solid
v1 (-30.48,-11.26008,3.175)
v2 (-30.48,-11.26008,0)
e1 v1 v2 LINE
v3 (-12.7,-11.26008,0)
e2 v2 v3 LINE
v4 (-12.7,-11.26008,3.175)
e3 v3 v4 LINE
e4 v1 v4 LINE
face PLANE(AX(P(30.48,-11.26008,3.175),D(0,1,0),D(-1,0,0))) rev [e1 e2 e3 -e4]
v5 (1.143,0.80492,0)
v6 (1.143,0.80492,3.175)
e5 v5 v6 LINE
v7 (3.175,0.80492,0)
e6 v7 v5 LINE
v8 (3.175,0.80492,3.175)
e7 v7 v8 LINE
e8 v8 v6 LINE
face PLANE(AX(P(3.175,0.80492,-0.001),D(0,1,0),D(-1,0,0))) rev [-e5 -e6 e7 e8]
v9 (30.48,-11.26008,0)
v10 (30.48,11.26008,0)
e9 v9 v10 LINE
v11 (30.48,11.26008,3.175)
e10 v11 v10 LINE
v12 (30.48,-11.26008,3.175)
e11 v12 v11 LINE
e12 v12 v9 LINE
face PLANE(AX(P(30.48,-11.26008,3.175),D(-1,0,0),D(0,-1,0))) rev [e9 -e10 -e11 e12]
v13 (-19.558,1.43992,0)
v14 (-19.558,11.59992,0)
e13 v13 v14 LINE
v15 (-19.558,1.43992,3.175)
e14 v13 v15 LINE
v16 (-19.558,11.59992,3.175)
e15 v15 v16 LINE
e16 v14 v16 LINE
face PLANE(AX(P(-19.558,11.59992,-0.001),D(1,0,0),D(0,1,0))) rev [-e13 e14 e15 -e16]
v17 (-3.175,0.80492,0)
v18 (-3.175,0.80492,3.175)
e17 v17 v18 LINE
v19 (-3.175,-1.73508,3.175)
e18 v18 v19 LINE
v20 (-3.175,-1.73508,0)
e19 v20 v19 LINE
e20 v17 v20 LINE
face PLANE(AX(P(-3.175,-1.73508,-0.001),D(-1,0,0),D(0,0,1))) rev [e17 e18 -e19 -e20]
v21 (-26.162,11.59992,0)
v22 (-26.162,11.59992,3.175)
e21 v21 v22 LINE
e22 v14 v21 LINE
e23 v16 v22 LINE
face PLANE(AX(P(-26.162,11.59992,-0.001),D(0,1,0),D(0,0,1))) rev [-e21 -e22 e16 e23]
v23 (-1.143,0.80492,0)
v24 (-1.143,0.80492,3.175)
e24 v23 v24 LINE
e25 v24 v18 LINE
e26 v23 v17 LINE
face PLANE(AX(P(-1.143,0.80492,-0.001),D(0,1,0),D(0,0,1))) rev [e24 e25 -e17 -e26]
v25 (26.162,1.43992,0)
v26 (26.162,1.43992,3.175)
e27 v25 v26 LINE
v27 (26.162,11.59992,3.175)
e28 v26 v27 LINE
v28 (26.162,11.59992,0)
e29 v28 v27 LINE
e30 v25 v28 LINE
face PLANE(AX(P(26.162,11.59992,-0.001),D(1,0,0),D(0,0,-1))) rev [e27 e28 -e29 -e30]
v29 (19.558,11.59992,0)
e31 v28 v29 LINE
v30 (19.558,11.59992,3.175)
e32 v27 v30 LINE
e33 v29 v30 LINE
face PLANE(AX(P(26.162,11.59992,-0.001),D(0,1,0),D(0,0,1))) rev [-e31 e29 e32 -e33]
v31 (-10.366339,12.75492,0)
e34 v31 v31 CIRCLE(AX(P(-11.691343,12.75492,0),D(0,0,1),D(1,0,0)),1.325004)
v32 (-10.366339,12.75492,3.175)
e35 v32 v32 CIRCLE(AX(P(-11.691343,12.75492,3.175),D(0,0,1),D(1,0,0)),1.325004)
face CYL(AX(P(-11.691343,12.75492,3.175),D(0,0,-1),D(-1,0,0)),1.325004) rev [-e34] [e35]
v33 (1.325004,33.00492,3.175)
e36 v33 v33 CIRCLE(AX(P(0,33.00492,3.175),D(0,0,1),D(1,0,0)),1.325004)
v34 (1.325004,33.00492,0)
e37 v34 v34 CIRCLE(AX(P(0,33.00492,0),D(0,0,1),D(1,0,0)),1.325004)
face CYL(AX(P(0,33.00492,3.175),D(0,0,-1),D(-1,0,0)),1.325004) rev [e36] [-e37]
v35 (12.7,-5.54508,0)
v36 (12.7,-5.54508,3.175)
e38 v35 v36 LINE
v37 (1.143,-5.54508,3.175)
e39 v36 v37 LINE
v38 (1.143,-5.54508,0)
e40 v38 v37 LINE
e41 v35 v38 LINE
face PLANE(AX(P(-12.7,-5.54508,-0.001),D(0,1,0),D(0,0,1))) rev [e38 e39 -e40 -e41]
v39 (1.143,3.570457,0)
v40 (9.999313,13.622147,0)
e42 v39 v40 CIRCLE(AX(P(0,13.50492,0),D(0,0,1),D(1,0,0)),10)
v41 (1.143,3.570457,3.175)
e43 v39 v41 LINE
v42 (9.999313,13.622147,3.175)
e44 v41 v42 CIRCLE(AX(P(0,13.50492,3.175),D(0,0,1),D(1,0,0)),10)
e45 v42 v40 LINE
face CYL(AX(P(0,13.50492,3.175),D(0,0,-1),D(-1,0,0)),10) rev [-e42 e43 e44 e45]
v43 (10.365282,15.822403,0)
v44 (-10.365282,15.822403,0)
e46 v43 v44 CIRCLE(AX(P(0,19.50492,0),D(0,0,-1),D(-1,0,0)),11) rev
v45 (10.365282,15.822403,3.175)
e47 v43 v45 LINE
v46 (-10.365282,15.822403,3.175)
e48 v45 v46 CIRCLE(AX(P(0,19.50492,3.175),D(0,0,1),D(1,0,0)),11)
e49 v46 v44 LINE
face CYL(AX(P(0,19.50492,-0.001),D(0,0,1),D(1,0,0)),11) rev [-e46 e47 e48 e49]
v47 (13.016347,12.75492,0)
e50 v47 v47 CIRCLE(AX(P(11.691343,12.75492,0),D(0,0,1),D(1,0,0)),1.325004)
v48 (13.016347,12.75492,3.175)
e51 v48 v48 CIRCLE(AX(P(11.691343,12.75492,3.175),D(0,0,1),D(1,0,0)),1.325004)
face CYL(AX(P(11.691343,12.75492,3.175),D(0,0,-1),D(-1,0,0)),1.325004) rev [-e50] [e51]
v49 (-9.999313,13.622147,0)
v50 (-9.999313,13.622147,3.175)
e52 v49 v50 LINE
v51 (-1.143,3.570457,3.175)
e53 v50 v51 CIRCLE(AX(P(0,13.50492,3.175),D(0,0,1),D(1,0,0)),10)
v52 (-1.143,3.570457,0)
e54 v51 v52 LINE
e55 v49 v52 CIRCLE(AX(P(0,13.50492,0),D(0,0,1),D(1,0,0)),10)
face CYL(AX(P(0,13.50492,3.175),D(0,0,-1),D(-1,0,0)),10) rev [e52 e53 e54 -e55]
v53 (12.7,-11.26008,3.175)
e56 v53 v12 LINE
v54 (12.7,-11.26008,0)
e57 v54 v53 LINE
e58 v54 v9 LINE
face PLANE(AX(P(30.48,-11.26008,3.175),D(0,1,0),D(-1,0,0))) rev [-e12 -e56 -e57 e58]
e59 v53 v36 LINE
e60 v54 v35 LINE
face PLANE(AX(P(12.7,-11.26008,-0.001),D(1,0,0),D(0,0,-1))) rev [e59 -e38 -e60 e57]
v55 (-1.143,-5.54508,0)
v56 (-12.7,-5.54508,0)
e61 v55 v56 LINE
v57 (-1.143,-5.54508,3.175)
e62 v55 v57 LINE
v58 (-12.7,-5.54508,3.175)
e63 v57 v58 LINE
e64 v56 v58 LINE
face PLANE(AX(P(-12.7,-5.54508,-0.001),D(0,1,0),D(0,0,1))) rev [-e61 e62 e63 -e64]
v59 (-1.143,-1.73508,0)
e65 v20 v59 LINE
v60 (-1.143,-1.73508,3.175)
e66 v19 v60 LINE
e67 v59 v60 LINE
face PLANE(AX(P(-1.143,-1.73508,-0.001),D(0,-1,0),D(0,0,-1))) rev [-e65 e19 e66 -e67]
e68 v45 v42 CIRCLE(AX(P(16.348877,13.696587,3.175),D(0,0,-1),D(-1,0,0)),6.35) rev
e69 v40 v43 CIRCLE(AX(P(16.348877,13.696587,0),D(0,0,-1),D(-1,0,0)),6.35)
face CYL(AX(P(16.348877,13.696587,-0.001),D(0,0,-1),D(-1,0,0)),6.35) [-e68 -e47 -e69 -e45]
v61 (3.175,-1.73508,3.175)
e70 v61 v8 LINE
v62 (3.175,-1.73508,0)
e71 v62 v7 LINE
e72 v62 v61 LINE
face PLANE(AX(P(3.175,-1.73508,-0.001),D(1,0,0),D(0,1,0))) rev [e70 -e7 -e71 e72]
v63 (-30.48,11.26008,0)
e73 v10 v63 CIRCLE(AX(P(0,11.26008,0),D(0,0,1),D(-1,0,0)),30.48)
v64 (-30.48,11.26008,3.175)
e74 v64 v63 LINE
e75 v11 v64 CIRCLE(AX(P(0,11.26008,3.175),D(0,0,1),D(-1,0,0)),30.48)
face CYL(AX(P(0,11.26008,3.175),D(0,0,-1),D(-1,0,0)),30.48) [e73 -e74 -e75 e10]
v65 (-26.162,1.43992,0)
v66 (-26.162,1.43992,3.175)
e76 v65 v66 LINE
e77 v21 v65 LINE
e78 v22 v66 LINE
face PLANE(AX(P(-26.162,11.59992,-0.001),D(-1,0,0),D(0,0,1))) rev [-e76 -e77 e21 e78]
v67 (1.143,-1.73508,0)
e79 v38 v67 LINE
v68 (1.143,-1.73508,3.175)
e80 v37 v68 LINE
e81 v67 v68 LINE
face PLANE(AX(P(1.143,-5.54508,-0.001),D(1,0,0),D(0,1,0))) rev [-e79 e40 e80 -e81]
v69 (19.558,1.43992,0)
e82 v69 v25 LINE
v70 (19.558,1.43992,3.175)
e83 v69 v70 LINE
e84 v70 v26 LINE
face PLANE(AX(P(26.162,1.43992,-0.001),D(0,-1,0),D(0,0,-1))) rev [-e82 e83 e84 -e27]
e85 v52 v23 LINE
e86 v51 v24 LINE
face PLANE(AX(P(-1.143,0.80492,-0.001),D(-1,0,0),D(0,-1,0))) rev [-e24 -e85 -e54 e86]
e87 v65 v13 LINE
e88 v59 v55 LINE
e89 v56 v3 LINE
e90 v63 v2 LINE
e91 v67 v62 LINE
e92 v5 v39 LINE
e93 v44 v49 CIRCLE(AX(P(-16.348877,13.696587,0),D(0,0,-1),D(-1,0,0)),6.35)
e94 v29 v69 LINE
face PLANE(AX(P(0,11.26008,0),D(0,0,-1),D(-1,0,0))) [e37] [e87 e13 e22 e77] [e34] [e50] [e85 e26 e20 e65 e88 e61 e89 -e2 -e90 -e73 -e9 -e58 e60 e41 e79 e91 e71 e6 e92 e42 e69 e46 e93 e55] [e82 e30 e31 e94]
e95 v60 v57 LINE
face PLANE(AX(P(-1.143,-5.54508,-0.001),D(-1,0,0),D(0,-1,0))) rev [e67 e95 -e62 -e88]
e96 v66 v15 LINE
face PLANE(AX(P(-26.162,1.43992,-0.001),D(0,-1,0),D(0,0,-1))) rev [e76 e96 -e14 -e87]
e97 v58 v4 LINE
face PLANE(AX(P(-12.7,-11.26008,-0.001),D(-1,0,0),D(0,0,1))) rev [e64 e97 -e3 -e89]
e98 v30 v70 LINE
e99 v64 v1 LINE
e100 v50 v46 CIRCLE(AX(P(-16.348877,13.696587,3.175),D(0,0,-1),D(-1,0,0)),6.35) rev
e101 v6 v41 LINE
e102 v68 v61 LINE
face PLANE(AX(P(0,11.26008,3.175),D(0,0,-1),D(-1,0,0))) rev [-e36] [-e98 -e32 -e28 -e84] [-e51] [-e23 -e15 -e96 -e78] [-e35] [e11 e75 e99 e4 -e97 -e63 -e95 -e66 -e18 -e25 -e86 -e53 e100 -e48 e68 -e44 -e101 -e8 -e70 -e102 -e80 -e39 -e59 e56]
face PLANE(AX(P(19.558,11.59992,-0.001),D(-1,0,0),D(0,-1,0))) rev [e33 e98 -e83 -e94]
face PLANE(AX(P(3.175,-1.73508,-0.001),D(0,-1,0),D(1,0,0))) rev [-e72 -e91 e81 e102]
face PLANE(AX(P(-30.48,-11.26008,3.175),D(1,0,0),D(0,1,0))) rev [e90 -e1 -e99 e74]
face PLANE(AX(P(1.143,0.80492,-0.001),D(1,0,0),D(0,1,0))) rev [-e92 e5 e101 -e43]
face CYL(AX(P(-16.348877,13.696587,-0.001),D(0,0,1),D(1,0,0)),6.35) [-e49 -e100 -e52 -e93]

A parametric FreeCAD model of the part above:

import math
import FreeCAD as App
import Part
import Sketcher
Q = App.Units.Quantity


def edges_at(feature, points):
    """Names of the edges that pass closest to the given points."""
    edges = feature.Shape.Edges
    near = lambda p: min(range(len(edges)), key=lambda i: edges[i].distToShape(Part.Vertex(*p))[0])
    return sorted({f"Edge{near(p) + 1}" for p in points})

doc = App.newDocument("Part")
body = doc.addObject("PartDesign::Body", "Body")

sketch1 = body.newObject("Sketcher::SketchObject", "Sketch")
sketch1.AttachmentSupport = (doc.getObject("XY_Plane"), [""])
sketch1.MapMode = "FlatFace"
sketch1.addGeometry(Part.LineSegment(App.Vector(-30, -11, 0), App.Vector(30, -11, 0)), False)
sketch1.addGeometry(Part.LineSegment(App.Vector(30, -11, 0), App.Vector(30, 11, 0)), False)
sketch1.addGeometry(Part.ArcOfCircle(Part.Circle(App.Vector(0, 11, 0), App.Vector(0, 0, 1), 30), math.radians(0), math.radians(180)), False)
sketch1.addGeometry(Part.LineSegment(App.Vector(-30, 11, 0), App.Vector(-30, -11, 0)), False)
sketch1.addConstraint(Sketcher.Constraint("Coincident", 0, 2, 1, 1))
sketch1.addConstraint(Sketcher.Constraint("Tangent", 1, 2, 2, 1))
sketch1.addConstraint(Sketcher.Constraint("Tangent", 2, 2, 3, 1))
sketch1.addConstraint(Sketcher.Constraint("Coincident", 3, 2, 0, 1))
sketch1.addConstraint(Sketcher.Constraint("Horizontal", 0))
sketch1.addConstraint(Sketcher.Constraint("Vertical", 1))
sketch1.addConstraint(Sketcher.Constraint("Vertical", 3))
sketch1.addConstraint(Sketcher.Constraint("Symmetric", 0, 2, 2, 2, -1, 1))
sketch1.addConstraint(Sketcher.Constraint("Radius", 2, Q("1.2 in")))
sketch1.addConstraint(Sketcher.Constraint("DistanceY", 1, 1, 1, 2, 22.52016))
pad1 = body.newObject("PartDesign::Pad", "Pad")
pad1.Profile = sketch1
pad1.Length = Q("0.125 in")

sketch2 = body.newObject("Sketcher::SketchObject", "Sketch001")
sketch2.AttachmentSupport = (doc.getObject("XY_Plane"), [""])
sketch2.MapMode = "FlatFace"
sketch2.AttachmentOffset = App.Placement(App.Vector(0, 0, 0.125 * 25.4), App.Rotation())
sketch2.addGeometry(Part.Circle(App.Vector(0, 20, 0), App.Vector(0, 0, 1), 11), False)
sketch2.addConstraint(Sketcher.Constraint("PointOnObject", 0, 3, -2))
sketch2.addConstraint(Sketcher.Constraint("Diameter", 0, 22.0))
sketch2.addConstraint(Sketcher.Constraint("DistanceY", -1, 1, 0, 3, 19.50492))
pocket1 = body.newObject("PartDesign::Pocket", "Pocket")
pocket1.Profile = sketch2
pocket1.Type = "UpToFirst"

sketch3 = body.newObject("Sketcher::SketchObject", "Sketch002")
sketch3.AttachmentSupport = (doc.getObject("XY_Plane"), [""])
sketch3.MapMode = "FlatFace"
sketch3.AttachmentOffset = App.Placement(App.Vector(0, 0, 0.125 * 25.4), App.Rotation())
sketch3.addGeometry(Part.LineSegment(App.Vector(-13, -6, 0), App.Vector(-13, -11, 0)), False)
sketch3.addGeometry(Part.LineSegment(App.Vector(-13, -11, 0), App.Vector(13, -11, 0)), False)
sketch3.addGeometry(Part.LineSegment(App.Vector(13, -11, 0), App.Vector(13, -6, 0)), False)
sketch3.addGeometry(Part.LineSegment(App.Vector(13, -6, 0), App.Vector(-13, -6, 0)), False)
sketch3.addConstraint(Sketcher.Constraint("Coincident", 0, 2, 1, 1))
sketch3.addConstraint(Sketcher.Constraint("Coincident", 1, 2, 2, 1))
sketch3.addConstraint(Sketcher.Constraint("Coincident", 2, 2, 3, 1))
sketch3.addConstraint(Sketcher.Constraint("Coincident", 3, 2, 0, 1))
sketch3.addConstraint(Sketcher.Constraint("Vertical", 0))
sketch3.addConstraint(Sketcher.Constraint("Horizontal", 1))
sketch3.addConstraint(Sketcher.Constraint("Vertical", 2))
sketch3.addConstraint(Sketcher.Constraint("Horizontal", 3))
sketch3.addConstraint(Sketcher.Constraint("DistanceX", 1, 1, 1, 2, Q("1 in")))
sketch3.addConstraint(Sketcher.Constraint("DistanceX", 0, 2, -1, 1, Q("0.5 in")))
sketch3.addConstraint(Sketcher.Constraint("DistanceY", 0, 2, 0, 1, Q("0.225 in")))
sketch3.addConstraint(Sketcher.Constraint("DistanceY", 0, 2, -1, 1, 11.26008))
pocket2 = body.newObject("PartDesign::Pocket", "Pocket001")
pocket2.Profile = sketch3
pocket2.Type = "UpToFirst"

sketch4 = body.newObject("Sketcher::SketchObject", "Sketch003")
sketch4.AttachmentSupport = (doc.getObject("XY_Plane"), [""])
sketch4.MapMode = "FlatFace"
sketch4.AttachmentOffset = App.Placement(App.Vector(0, 0, 0.125 * 25.4), App.Rotation())
sketch4.addGeometry(Part.LineSegment(App.Vector(1.1, -1.7, 0), App.Vector(3.2, -1.7, 0)), False)
sketch4.addGeometry(Part.LineSegment(App.Vector(3.2, -1.7, 0), App.Vector(3.2, 0.8, 0)), False)
sketch4.addGeometry(Part.LineSegment(App.Vector(3.2, 0.8, 0), App.Vector(1.1, 0.8, 0)), False)
sketch4.addGeometry(Part.LineSegment(App.Vector(1.1, 0.8, 0), App.Vector(1.1, 9.7, 0)), False)
sketch4.addGeometry(Part.LineSegment(App.Vector(1.1, 9.7, 0), App.Vector(-1.1, 9.7, 0)), False)
sketch4.addGeometry(Part.LineSegment(App.Vector(-1.1, 9.7, 0), App.Vector(-1.1, 0.8, 0)), False)
sketch4.addGeometry(Part.LineSegment(App.Vector(-1.1, 0.8, 0), App.Vector(-3.2, 0.8, 0)), False)
sketch4.addGeometry(Part.LineSegment(App.Vector(-3.2, 0.8, 0), App.Vector(-3.2, -1.7, 0)), False)
sketch4.addGeometry(Part.LineSegment(App.Vector(-3.2, -1.7, 0), App.Vector(-1.1, -1.7, 0)), False)
sketch4.addGeometry(Part.LineSegment(App.Vector(-1.1, -1.7, 0), App.Vector(-1.1, -5.5, 0)), False)
sketch4.addGeometry(Part.LineSegment(App.Vector(-1.1, -5.5, 0), App.Vector(1.1, -5.5, 0)), False)
sketch4.addGeometry(Part.LineSegment(App.Vector(1.1, -5.5, 0), App.Vector(1.1, -1.7, 0)), False)
sketch4.addConstraint(Sketcher.Constraint("Coincident", 0, 2, 1, 1))
sketch4.addConstraint(Sketcher.Constraint("Coincident", 1, 2, 2, 1))
sketch4.addConstraint(Sketcher.Constraint("Coincident", 2, 2, 3, 1))
sketch4.addConstraint(Sketcher.Constraint("Coincident", 3, 2, 4, 1))
sketch4.addConstraint(Sketcher.Constraint("Coincident", 4, 2, 5, 1))
sketch4.addConstraint(Sketcher.Constraint("Coincident", 5, 2, 6, 1))
sketch4.addConstraint(Sketcher.Constraint("Coincident", 6, 2, 7, 1))
sketch4.addConstraint(Sketcher.Constraint("Coincident", 7, 2, 8, 1))
sketch4.addConstraint(Sketcher.Constraint("Coincident", 8, 2, 9, 1))
sketch4.addConstraint(Sketcher.Constraint("Coincident", 9, 2, 10, 1))
sketch4.addConstraint(Sketcher.Constraint("Coincident", 10, 2, 11, 1))
sketch4.addConstraint(Sketcher.Constraint("Coincident", 11, 2, 0, 1))
sketch4.addConstraint(Sketcher.Constraint("Horizontal", 0))
sketch4.addConstraint(Sketcher.Constraint("Vertical", 1))
sketch4.addConstraint(Sketcher.Constraint("Horizontal", 2))
sketch4.addConstraint(Sketcher.Constraint("Vertical", 3))
sketch4.addConstraint(Sketcher.Constraint("Horizontal", 4))
sketch4.addConstraint(Sketcher.Constraint("Vertical", 5))
sketch4.addConstraint(Sketcher.Constraint("Horizontal", 6))
sketch4.addConstraint(Sketcher.Constraint("Vertical", 7))
sketch4.addConstraint(Sketcher.Constraint("Horizontal", 8))
sketch4.addConstraint(Sketcher.Constraint("Vertical", 9))
sketch4.addConstraint(Sketcher.Constraint("Horizontal", 10))
sketch4.addConstraint(Sketcher.Constraint("Vertical", 11))
sketch4.addConstraint(Sketcher.Constraint("Symmetric", 2, 2, 5, 2, -2))
sketch4.addConstraint(Sketcher.Constraint("Symmetric", 0, 2, 7, 2, -2))
sketch4.addConstraint(Sketcher.Constraint("Vertical", 5, 2, 8, 2))
sketch4.addConstraint(Sketcher.Constraint("Vertical", 3, 2, 10, 2))
sketch4.addConstraint(Sketcher.Constraint("DistanceY", 1, 1, 1, 2, Q("0.1 in")))
sketch4.addConstraint(Sketcher.Constraint("DistanceX", 0, 1, 0, 2, Q("0.08 in")))
sketch4.addConstraint(Sketcher.Constraint("DistanceX", 4, 2, 4, 1, Q("0.09 in")))
sketch4.addConstraint(Sketcher.Constraint("DistanceY", 3, 1, 3, 2, Q("0.35 in")))
sketch4.addConstraint(Sketcher.Constraint("DistanceY", 9, 2, 9, 1, Q("0.15 in")))
sketch4.addConstraint(Sketcher.Constraint("DistanceY", 0, 2, -1, 1, 1.73508))
pocket3 = body.newObject("PartDesign::Pocket", "Pocket002")
pocket3.Profile = sketch4
pocket3.Type = "UpToFirst"

sketch5 = body.newObject("Sketcher::SketchObject", "Sketch004")
sketch5.AttachmentSupport = (doc.getObject("XY_Plane"), [""])
sketch5.MapMode = "FlatFace"
sketch5.addGeometry(Part.Circle(App.Vector(0, 33, 0), App.Vector(0, 0, 1), 1.3), False)
sketch5.addGeometry(Part.Circle(App.Vector(11.7, 12.8, 0), App.Vector(0, 0, 1), 1.3), False)
sketch5.addGeometry(Part.Circle(App.Vector(-11.7, 12.8, 0), App.Vector(0, 0, 1), 1.3), False)
sketch5.addConstraint(Sketcher.Constraint("Equal", 0, 1))
sketch5.addConstraint(Sketcher.Constraint("Equal", 1, 2))
sketch5.addConstraint(Sketcher.Constraint("Symmetric", 1, 3, 2, 3, -2))
sketch5.addConstraint(Sketcher.Constraint("PointOnObject", 0, 3, -2))
sketch5.addConstraint(Sketcher.Constraint("Diameter", 0, 2.650007))
sketch5.addConstraint(Sketcher.Constraint("DistanceY", 1, 3, 0, 3, 20.25))
sketch5.addConstraint(Sketcher.Constraint("DistanceY", -1, 1, 0, 3, 33.00492))
sketch5.addConstraint(Sketcher.Constraint("DistanceX", -1, 1, 1, 3, 11.691343))
pocket4 = body.newObject("PartDesign::Pocket", "Pocket003")
pocket4.Profile = sketch5
pocket4.Type = "ThroughAll"
pocket4.Reversed = True

sketch6 = body.newObject("Sketcher::SketchObject", "Sketch005")
sketch6.AttachmentSupport = (doc.getObject("XY_Plane"), [""])
sketch6.MapMode = "FlatFace"
sketch6.addGeometry(Part.Circle(App.Vector(0, 14, 0), App.Vector(0, 0, 1), 10), False)
sketch6.addConstraint(Sketcher.Constraint("PointOnObject", 0, 3, -2))
sketch6.addConstraint(Sketcher.Constraint("Diameter", 0, 20.0))
sketch6.addConstraint(Sketcher.Constraint("DistanceY", -1, 1, 0, 3, 13.50492))
pocket5 = body.newObject("PartDesign::Pocket", "Pocket004")
pocket5.Profile = sketch6
pocket5.Type = "ThroughAll"
pocket5.Reversed = True
doc.recompute()

fillet = body.newObject("PartDesign::Fillet", "Fillet")
fillet.Base = (pocket5, edges_at(pocket5, [(9.922, 14.755, 1.587), (-9.922, 14.755, 1.587)]))
fillet.Radius = Q("0.25 in")

sketch7 = body.newObject("Sketcher::SketchObject", "Sketch006")
sketch7.AttachmentSupport = (doc.getObject("XY_Plane"), [""])
sketch7.MapMode = "FlatFace"
sketch7.AttachmentOffset = App.Placement(App.Vector(0, 0, 0.125 * 25.4), App.Rotation())
sketch7.addGeometry(Part.LineSegment(App.Vector(20, 12, 0), App.Vector(20, 1, 0)), False)
sketch7.addGeometry(Part.LineSegment(App.Vector(20, 1, 0), App.Vector(26, 1, 0)), False)
sketch7.addGeometry(Part.LineSegment(App.Vector(26, 1, 0), App.Vector(26, 12, 0)), False)
sketch7.addGeometry(Part.LineSegment(App.Vector(26, 12, 0), App.Vector(20, 12, 0)), False)
sketch7.addConstraint(Sketcher.Constraint("Coincident", 0, 2, 1, 1))
sketch7.addConstraint(Sketcher.Constraint("Coincident", 1, 2, 2, 1))
sketch7.addConstraint(Sketcher.Constraint("Coincident", 2, 2, 3, 1))
sketch7.addConstraint(Sketcher.Constraint("Coincident", 3, 2, 0, 1))
sketch7.addConstraint(Sketcher.Constraint("Vertical", 0))
sketch7.addConstraint(Sketcher.Constraint("Horizontal", 1))
sketch7.addConstraint(Sketcher.Constraint("Vertical", 2))
sketch7.addConstraint(Sketcher.Constraint("Horizontal", 3))
sketch7.addConstraint(Sketcher.Constraint("DistanceY", 0, 2, 0, 1, Q("0.4 in")))
sketch7.addConstraint(Sketcher.Constraint("DistanceX", 1, 1, 1, 2, Q("0.26 in")))
sketch7.addConstraint(Sketcher.Constraint("DistanceX", -1, 1, 0, 2, Q("0.77 in")))
sketch7.addConstraint(Sketcher.Constraint("DistanceY", -1, 1, 0, 2, 1.43992))
pocket6 = body.newObject("PartDesign::Pocket", "Pocket005")
pocket6.Profile = sketch7
pocket6.Type = "UpToFirst"

sketch8 = body.newObject("Sketcher::SketchObject", "Sketch007")
sketch8.AttachmentSupport = (doc.getObject("XY_Plane"), [""])
sketch8.MapMode = "FlatFace"
sketch8.AttachmentOffset = App.Placement(App.Vector(0, 0, 0.125 * 25.4), App.Rotation())
sketch8.addGeometry(Part.LineSegment(App.Vector(-26, 12, 0), App.Vector(-26, 1, 0)), False)
sketch8.addGeometry(Part.LineSegment(App.Vector(-26, 1, 0), App.Vector(-20, 1, 0)), False)
sketch8.addGeometry(Part.LineSegment(App.Vector(-20, 1, 0), App.Vector(-20, 12, 0)), False)
sketch8.addGeometry(Part.LineSegment(App.Vector(-20, 12, 0), App.Vector(-26, 12, 0)), False)
sketch8.addConstraint(Sketcher.Constraint("Coincident", 0, 2, 1, 1))
sketch8.addConstraint(Sketcher.Constraint("Coincident", 1, 2, 2, 1))
sketch8.addConstraint(Sketcher.Constraint("Coincident", 2, 2, 3, 1))
sketch8.addConstraint(Sketcher.Constraint("Coincident", 3, 2, 0, 1))
sketch8.addConstraint(Sketcher.Constraint("Vertical", 0))
sketch8.addConstraint(Sketcher.Constraint("Horizontal", 1))
sketch8.addConstraint(Sketcher.Constraint("Vertical", 2))
sketch8.addConstraint(Sketcher.Constraint("Horizontal", 3))
sketch8.addConstraint(Sketcher.Constraint("DistanceY", 0, 2, 0, 1, Q("0.4 in")))
sketch8.addConstraint(Sketcher.Constraint("DistanceX", 1, 1, 1, 2, Q("0.26 in")))
sketch8.addConstraint(Sketcher.Constraint("DistanceX", 0, 2, -1, 1, Q("1.03 in")))
sketch8.addConstraint(Sketcher.Constraint("DistanceY", -1, 1, 0, 2, 1.43992))
pocket7 = body.newObject("PartDesign::Pocket", "Pocket006")
pocket7.Profile = sketch8
pocket7.Type = "UpToFirst"

doc.recompute()
